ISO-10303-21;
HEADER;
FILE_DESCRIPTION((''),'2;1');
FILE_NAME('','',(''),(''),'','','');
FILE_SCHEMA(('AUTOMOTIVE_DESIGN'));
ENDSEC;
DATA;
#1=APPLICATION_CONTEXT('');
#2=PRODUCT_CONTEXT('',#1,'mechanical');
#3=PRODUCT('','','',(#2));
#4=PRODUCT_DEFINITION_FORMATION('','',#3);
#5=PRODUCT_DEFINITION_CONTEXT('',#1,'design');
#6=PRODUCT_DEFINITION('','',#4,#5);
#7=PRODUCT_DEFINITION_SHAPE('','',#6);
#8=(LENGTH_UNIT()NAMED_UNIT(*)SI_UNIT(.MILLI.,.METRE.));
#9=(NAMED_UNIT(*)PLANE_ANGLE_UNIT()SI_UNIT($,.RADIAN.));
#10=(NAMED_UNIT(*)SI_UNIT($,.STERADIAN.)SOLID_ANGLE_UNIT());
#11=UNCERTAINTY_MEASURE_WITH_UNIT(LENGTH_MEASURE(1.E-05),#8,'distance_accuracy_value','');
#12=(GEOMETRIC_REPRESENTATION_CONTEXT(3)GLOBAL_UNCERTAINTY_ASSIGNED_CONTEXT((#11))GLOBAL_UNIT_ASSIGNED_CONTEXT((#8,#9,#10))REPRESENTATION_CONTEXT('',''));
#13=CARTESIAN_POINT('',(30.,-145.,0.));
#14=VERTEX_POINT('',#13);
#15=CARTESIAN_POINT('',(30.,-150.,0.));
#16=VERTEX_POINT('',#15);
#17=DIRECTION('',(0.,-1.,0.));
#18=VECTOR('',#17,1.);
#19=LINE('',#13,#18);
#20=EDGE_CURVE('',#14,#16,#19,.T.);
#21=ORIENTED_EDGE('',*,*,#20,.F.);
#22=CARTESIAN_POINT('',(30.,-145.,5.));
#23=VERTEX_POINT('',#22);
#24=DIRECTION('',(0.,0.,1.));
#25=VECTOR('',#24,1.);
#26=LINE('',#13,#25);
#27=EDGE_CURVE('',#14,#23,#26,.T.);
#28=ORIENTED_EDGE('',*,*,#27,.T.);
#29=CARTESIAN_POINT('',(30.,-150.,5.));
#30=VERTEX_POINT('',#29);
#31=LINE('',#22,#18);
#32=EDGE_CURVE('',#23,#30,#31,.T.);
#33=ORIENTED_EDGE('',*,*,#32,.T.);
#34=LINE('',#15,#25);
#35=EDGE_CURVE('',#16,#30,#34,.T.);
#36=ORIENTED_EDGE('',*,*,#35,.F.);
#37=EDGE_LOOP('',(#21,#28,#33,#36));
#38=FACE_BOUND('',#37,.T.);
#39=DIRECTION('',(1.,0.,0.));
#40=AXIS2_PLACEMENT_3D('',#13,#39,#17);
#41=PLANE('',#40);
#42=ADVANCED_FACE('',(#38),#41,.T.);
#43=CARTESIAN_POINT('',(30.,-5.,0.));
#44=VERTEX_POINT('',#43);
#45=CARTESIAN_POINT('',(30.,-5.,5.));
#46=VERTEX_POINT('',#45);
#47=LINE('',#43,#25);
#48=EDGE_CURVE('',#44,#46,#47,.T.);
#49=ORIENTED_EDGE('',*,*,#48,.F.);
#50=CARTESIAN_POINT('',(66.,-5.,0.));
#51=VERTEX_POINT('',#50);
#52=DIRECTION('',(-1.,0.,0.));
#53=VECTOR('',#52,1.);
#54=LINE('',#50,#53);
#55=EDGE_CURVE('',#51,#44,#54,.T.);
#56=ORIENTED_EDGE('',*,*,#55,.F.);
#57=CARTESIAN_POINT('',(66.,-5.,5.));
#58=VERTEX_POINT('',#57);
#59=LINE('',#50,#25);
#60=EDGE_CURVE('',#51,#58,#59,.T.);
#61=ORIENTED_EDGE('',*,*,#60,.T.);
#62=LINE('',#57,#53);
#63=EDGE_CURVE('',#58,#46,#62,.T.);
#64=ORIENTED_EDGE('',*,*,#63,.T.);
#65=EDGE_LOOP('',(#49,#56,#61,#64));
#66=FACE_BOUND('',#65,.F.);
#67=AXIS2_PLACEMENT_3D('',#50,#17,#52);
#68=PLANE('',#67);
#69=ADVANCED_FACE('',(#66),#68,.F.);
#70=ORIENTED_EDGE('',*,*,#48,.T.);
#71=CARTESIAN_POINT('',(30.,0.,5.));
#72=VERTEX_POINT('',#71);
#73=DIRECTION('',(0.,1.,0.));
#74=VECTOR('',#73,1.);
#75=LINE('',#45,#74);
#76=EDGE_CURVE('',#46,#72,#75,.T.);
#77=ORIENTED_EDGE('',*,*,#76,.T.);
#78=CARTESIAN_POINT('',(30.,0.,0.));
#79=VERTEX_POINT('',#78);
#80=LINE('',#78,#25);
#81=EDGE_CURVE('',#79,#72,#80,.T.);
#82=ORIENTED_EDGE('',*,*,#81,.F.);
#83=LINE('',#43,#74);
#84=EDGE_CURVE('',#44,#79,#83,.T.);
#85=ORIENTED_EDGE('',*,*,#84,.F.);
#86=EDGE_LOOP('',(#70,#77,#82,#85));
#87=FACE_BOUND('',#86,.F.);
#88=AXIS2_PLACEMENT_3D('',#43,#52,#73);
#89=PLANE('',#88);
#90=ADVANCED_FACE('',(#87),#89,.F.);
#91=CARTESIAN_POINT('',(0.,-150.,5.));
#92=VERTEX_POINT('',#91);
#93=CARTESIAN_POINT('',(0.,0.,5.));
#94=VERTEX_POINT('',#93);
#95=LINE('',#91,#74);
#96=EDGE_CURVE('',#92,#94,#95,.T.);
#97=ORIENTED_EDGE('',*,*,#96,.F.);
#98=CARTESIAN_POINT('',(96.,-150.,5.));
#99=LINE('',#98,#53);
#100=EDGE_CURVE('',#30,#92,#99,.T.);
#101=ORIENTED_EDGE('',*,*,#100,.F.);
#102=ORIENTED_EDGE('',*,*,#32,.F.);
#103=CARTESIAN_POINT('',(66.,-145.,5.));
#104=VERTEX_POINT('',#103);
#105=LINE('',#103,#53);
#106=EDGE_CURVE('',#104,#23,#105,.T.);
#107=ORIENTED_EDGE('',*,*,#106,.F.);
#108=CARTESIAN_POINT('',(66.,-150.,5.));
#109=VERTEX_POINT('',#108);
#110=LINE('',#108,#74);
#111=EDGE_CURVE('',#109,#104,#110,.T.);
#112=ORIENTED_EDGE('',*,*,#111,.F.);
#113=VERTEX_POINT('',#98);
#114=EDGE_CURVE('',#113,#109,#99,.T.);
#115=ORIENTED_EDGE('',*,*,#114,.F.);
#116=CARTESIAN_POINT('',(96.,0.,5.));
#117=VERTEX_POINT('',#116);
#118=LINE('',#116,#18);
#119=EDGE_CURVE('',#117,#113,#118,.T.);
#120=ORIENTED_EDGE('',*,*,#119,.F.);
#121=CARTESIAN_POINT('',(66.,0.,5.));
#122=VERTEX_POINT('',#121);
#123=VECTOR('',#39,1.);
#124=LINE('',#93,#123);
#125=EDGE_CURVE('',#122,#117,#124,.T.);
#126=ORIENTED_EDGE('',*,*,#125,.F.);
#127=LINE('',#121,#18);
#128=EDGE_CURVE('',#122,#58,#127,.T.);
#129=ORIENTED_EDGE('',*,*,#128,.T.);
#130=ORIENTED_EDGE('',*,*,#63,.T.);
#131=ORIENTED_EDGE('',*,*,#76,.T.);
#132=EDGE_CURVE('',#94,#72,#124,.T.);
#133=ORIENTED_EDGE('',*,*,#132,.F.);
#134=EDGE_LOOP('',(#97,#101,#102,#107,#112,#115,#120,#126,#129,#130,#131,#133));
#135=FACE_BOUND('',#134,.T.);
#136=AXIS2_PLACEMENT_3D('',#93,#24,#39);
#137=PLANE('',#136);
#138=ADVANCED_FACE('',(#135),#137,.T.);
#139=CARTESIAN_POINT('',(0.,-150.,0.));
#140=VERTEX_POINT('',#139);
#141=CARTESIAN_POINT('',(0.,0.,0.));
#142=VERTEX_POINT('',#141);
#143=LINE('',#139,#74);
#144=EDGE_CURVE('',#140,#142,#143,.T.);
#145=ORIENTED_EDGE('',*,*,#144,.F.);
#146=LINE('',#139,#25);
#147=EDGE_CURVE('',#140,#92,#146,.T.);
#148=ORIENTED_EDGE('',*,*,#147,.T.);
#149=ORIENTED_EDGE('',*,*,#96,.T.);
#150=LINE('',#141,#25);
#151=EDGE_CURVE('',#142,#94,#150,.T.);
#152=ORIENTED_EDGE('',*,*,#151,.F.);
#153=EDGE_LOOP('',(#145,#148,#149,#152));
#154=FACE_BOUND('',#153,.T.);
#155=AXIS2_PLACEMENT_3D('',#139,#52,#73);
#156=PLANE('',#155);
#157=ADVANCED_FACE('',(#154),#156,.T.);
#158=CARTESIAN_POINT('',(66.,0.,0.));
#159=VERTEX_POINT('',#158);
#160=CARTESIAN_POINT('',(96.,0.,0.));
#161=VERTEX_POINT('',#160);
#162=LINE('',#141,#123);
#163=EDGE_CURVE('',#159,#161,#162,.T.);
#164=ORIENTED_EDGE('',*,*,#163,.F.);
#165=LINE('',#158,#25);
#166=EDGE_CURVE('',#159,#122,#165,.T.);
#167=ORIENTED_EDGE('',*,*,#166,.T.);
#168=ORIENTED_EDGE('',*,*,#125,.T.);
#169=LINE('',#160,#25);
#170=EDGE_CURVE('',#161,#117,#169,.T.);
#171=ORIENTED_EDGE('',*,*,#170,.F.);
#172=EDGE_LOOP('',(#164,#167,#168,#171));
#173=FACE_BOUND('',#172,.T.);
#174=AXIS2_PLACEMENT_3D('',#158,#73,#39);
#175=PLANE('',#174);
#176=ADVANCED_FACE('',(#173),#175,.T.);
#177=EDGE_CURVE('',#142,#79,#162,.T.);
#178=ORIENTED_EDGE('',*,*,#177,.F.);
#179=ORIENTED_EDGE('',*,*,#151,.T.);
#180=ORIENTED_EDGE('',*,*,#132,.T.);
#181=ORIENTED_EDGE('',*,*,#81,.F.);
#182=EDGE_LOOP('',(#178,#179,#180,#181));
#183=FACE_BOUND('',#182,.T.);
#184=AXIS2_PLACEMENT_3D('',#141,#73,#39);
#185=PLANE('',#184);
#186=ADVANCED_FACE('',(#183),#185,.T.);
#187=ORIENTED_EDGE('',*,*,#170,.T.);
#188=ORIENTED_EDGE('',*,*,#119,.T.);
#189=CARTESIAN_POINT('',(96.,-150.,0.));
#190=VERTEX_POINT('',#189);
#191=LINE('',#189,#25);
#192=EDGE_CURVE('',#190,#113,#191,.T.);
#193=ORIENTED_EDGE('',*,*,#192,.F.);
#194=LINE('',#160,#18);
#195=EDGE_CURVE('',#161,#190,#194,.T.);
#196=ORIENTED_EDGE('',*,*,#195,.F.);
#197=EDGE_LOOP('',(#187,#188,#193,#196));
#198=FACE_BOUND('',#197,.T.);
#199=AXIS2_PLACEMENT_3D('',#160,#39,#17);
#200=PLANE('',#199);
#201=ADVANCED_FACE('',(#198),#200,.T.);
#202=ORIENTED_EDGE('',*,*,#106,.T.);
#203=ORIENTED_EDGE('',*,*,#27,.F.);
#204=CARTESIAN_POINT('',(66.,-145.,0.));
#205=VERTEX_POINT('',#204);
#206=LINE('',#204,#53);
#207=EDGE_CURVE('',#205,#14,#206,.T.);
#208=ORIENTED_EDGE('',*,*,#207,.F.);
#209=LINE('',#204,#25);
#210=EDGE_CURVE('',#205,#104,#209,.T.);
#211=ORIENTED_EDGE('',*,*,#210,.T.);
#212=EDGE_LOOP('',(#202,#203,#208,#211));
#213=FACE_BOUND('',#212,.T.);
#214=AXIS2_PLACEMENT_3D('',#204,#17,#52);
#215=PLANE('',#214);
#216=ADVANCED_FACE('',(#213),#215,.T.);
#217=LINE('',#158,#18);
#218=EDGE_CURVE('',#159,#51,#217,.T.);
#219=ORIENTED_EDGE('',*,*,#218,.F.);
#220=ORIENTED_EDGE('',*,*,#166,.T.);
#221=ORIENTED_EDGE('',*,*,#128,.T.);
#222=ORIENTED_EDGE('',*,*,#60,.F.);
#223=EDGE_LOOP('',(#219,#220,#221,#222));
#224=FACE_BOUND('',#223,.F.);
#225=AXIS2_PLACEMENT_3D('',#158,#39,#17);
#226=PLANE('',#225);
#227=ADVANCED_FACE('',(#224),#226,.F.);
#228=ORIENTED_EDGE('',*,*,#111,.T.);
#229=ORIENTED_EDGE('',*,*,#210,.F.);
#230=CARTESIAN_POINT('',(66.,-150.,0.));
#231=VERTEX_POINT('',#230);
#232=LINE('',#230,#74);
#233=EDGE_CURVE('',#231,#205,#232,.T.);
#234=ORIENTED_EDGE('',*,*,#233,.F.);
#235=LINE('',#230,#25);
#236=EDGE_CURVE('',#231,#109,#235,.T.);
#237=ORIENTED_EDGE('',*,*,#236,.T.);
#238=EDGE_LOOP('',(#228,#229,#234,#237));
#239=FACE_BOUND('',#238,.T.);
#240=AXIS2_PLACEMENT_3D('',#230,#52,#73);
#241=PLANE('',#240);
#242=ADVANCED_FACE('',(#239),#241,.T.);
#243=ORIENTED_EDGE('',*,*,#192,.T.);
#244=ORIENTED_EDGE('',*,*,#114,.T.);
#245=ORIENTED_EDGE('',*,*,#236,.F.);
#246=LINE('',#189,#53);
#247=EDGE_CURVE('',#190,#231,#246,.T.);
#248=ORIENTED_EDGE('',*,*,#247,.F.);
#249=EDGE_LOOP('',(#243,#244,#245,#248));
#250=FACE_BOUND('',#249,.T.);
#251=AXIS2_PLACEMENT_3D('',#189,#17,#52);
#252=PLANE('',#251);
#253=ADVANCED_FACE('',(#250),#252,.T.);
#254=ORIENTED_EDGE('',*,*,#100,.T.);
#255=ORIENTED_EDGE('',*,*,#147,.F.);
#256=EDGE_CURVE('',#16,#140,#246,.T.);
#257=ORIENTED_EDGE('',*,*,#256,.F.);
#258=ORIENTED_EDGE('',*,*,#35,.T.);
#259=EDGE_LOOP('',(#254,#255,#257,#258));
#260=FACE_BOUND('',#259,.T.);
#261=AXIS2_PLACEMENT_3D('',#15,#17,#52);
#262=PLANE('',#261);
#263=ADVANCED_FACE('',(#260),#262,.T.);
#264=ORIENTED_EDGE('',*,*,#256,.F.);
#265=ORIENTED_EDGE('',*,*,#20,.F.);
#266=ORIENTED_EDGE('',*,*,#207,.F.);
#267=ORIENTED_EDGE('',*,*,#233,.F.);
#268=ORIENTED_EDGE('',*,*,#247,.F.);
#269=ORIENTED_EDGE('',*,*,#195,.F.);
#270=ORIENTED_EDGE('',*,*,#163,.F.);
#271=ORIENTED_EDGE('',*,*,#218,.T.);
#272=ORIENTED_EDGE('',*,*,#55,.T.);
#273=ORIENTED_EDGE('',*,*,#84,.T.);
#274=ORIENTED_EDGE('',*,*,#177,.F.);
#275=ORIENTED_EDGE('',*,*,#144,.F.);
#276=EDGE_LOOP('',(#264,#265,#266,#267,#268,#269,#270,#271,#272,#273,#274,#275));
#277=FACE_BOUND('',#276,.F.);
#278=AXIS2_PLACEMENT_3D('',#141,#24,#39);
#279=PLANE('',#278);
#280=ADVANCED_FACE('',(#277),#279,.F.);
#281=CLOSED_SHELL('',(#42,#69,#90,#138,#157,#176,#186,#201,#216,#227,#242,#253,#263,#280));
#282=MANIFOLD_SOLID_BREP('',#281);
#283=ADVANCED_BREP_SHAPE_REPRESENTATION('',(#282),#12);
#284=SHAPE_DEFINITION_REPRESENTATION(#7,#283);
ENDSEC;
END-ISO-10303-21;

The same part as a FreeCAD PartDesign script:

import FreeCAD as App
import Part
import Sketcher

V = App.Vector
Q = App.Units.Quantity

doc = App.newDocument("Part")
body = doc.addObject("PartDesign::Body", "Body")

sketch1 = body.newObject("Sketcher::SketchObject", "Sketch")
sketch1.AttachmentSupport = (doc.getObject("XY_Plane"), [""])
sketch1.MapMode = "FlatFace"
sketch1.addGeometry(Part.LineSegment(V(30, 0, 0), V(0, 0, 0)), False)
sketch1.addGeometry(Part.LineSegment(V(0, 0, 0), V(0, -150, 0)), False)
sketch1.addGeometry(Part.LineSegment(V(0, -150, 0), V(30, -150, 0)), False)
sketch1.addGeometry(Part.LineSegment(V(30, -150, 0), V(30, -145, 0)), False)
sketch1.addGeometry(Part.LineSegment(V(30, -145, 0), V(66, -145, 0)), False)
sketch1.addGeometry(Part.LineSegment(V(66, -145, 0), V(66, -150, 0)), False)
sketch1.addGeometry(Part.LineSegment(V(66, -150, 0), V(96, -150, 0)), False)
sketch1.addGeometry(Part.LineSegment(V(96, -150, 0), V(96, 0, 0)), False)
sketch1.addGeometry(Part.LineSegment(V(96, 0, 0), V(66, 0, 0)), False)
sketch1.addGeometry(Part.LineSegment(V(66, 0, 0), V(66, -5, 0)), False)
sketch1.addGeometry(Part.LineSegment(V(66, -5, 0), V(30, -5, 0)), False)
sketch1.addGeometry(Part.LineSegment(V(30, -5, 0), V(30, 0, 0)), False)
sketch1.addConstraint(Sketcher.Constraint("Coincident", 0, 2, 1, 1))
sketch1.addConstraint(Sketcher.Constraint("Coincident", 1, 2, 2, 1))
sketch1.addConstraint(Sketcher.Constraint("Coincident", 2, 2, 3, 1))
sketch1.addConstraint(Sketcher.Constraint("Coincident", 3, 2, 4, 1))
sketch1.addConstraint(Sketcher.Constraint("Coincident", 4, 2, 5, 1))
sketch1.addConstraint(Sketcher.Constraint("Coincident", 5, 2, 6, 1))
sketch1.addConstraint(Sketcher.Constraint("Coincident", 6, 2, 7, 1))
sketch1.addConstraint(Sketcher.Constraint("Coincident", 7, 2, 8, 1))
sketch1.addConstraint(Sketcher.Constraint("Coincident", 8, 2, 9, 1))
sketch1.addConstraint(Sketcher.Constraint("Coincident", 9, 2, 10, 1))
sketch1.addConstraint(Sketcher.Constraint("Coincident", 10, 2, 11, 1))
sketch1.addConstraint(Sketcher.Constraint("Coincident", 11, 2, 0, 1))
sketch1.addConstraint(Sketcher.Constraint("Horizontal", 0))
sketch1.addConstraint(Sketcher.Constraint("Vertical", 1))
sketch1.addConstraint(Sketcher.Constraint("Horizontal", 2))
sketch1.addConstraint(Sketcher.Constraint("Vertical", 3))
sketch1.addConstraint(Sketcher.Constraint("Horizontal", 4))
sketch1.addConstraint(Sketcher.Constraint("Vertical", 5))
sketch1.addConstraint(Sketcher.Constraint("Horizontal", 6))
sketch1.addConstraint(Sketcher.Constraint("Vertical", 7))
sketch1.addConstraint(Sketcher.Constraint("Horizontal", 8))
sketch1.addConstraint(Sketcher.Constraint("Vertical", 9))
sketch1.addConstraint(Sketcher.Constraint("Horizontal", 10))
sketch1.addConstraint(Sketcher.Constraint("Vertical", 11))
sketch1.addConstraint(Sketcher.Constraint("Coincident", 0, 2, -1, 1))
sketch1.addConstraint(Sketcher.Constraint("PointOnObject", 7, 2, -1))
sketch1.addConstraint(Sketcher.Constraint("Horizontal", 2, 2, 5, 2))
sketch1.addConstraint(Sketcher.Constraint("Vertical", 5, 2, 8, 2))
sketch1.addConstraint(Sketcher.Constraint("Vertical", 3, 2, 10, 2))
sketch1.addConstraint(Sketcher.Constraint("Equal", 2, 6))
sketch1.addConstraint(Sketcher.Constraint("Equal", 5, 9))
sketch1.addConstraint(Sketcher.Constraint("DistanceX", 0, 2, 0, 1, Q("30 mm")))
sketch1.addConstraint(Sketcher.Constraint("DistanceX", 4, 1, 4, 2, Q("36 mm")))
sketch1.addConstraint(Sketcher.Constraint("DistanceY", 1, 2, 1, 1, Q("150 mm")))
sketch1.addConstraint(Sketcher.Constraint("DistanceY", 3, 1, 3, 2, Q("5 mm")))
pad1 = body.newObject("PartDesign::Pad", "Pad")
pad1.Profile = sketch1
pad1.Length = 5

doc.recompute()
